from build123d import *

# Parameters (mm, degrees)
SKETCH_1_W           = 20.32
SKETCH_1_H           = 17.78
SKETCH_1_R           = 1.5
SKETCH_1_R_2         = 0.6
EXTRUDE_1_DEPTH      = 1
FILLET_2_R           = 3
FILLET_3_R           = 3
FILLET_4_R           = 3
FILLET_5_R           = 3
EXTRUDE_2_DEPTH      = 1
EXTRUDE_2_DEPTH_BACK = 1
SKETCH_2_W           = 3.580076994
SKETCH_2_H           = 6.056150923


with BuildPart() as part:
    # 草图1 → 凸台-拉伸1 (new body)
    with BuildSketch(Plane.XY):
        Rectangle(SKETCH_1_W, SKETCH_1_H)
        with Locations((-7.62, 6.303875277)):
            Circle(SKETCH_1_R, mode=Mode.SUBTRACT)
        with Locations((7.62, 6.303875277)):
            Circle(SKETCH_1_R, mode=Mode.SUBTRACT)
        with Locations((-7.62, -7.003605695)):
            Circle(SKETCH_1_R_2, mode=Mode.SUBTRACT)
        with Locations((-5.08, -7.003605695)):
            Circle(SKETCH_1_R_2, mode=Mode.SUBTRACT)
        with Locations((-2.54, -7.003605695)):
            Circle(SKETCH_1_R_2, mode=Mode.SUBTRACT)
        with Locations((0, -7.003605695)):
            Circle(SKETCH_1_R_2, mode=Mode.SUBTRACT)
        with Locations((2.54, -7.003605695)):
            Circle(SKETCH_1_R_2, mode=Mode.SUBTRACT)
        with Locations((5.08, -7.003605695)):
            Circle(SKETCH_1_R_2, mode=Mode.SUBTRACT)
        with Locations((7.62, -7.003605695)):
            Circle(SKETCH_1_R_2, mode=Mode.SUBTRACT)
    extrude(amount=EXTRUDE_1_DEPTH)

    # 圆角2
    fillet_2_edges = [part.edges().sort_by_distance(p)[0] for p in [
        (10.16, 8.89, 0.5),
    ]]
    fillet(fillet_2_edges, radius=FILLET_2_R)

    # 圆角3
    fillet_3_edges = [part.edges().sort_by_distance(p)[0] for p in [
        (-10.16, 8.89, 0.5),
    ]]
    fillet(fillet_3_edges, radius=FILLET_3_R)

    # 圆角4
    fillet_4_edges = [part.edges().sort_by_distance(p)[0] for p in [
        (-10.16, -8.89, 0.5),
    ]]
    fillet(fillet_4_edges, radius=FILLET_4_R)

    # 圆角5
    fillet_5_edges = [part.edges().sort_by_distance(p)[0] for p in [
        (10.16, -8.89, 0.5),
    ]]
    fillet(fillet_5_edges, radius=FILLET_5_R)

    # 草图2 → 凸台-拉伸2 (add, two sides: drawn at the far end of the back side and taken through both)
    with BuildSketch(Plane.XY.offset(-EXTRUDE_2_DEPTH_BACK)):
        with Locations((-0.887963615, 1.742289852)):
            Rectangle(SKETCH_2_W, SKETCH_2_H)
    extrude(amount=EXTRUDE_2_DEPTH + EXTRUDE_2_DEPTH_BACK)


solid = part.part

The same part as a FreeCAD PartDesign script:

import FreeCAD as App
import Part
import Sketcher
Q = App.Units.Quantity


def edges_at(feature, points):
    """Names of the edges that pass closest to the given points."""
    edges = feature.Shape.Edges
    near = lambda p: min(range(len(edges)), key=lambda i: edges[i].distToShape(Part.Vertex(*p))[0])
    return sorted({f"Edge{near(p) + 1}" for p in points})


def add_polygon(sketch, points):
    """Adds a closed chain of lines whose ends are joined by coincident constraints."""
    first, n = sketch.GeometryCount, len(points)
    for a, b in zip(points, points[1:] + points[:1]):
        sketch.addGeometry(Part.LineSegment(App.Vector(*a, 0), App.Vector(*b, 0)), False)
    for i in range(n):
        sketch.addConstraint(Sketcher.Constraint("Coincident", first + i, 2, first + (i + 1) % n, 1))

doc = App.newDocument("Part")
body = doc.addObject("PartDesign::Body", "Body")

sketch1 = body.newObject("Sketcher::SketchObject", "Sketch")
sketch1.AttachmentSupport = (doc.getObject("XY_Plane"), [""])
sketch1.MapMode = "FlatFace"
add_polygon(sketch1, [(-10.16, 8.89), (-10.16, -8.89), (10.16, -8.89), (10.16, 8.89)])
sketch1.addGeometry(Part.Circle(App.Vector(-7.62, -7.003606, 0), App.Vector(0, 0, 1), 0.6), False)
sketch1.addGeometry(Part.Circle(App.Vector(-5.08, -7.003606, 0), App.Vector(0, 0, 1), 0.6), False)
sketch1.addGeometry(Part.Circle(App.Vector(-2.54, -7.003606, 0), App.Vector(0, 0, 1), 0.6), False)
sketch1.addGeometry(Part.Circle(App.Vector(0, -7.003606, 0), App.Vector(0, 0, 1), 0.6), False)
sketch1.addGeometry(Part.Circle(App.Vector(2.54, -7.003606, 0), App.Vector(0, 0, 1), 0.6), False)
sketch1.addGeometry(Part.Circle(App.Vector(5.08, -7.003606, 0), App.Vector(0, 0, 1), 0.6), False)
sketch1.addGeometry(Part.Circle(App.Vector(7.62, -7.003606, 0), App.Vector(0, 0, 1), 0.6), False)
sketch1.addGeometry(Part.Circle(App.Vector(-7.62, 6.303875, 0), App.Vector(0, 0, 1), 1.5), False)
sketch1.addGeometry(Part.Circle(App.Vector(7.62, 6.303875, 0), App.Vector(0, 0, 1), 1.5), False)
sketch1.addConstraint(Sketcher.Constraint("Vertical", 0))
sketch1.addConstraint(Sketcher.Constraint("Horizontal", 1))
sketch1.addConstraint(Sketcher.Constraint("Vertical", 2))
sketch1.addConstraint(Sketcher.Constraint("Horizontal", 3))
sketch1.addConstraint(Sketcher.Constraint("Equal", 4, 5))
sketch1.addConstraint(Sketcher.Constraint("Equal", 5, 6))
sketch1.addConstraint(Sketcher.Constraint("Equal", 6, 7))
sketch1.addConstraint(Sketcher.Constraint("Equal", 7, 8))
sketch1.addConstraint(Sketcher.Constraint("Equal", 8, 9))
sketch1.addConstraint(Sketcher.Constraint("Equal", 9, 10))
sketch1.addConstraint(Sketcher.Constraint("Equal", 11, 12))
sketch1.addConstraint(Sketcher.Constraint("Symmetric", 0, 2, 2, 2, -1, 1))
sketch1.addConstraint(Sketcher.Constraint("Symmetric", 6, 3, 8, 3, -2))
sketch1.addConstraint(Sketcher.Constraint("Symmetric", 5, 3, 9, 3, -2))
sketch1.addConstraint(Sketcher.Constraint("Symmetric", 4, 3, 10, 3, -2))
sketch1.addConstraint(Sketcher.Constraint("Symmetric", 11, 3, 12, 3, -2))
sketch1.addConstraint(Sketcher.Constraint("PointOnObject", 7, 3, -2))
sketch1.addConstraint(Sketcher.Constraint("Horizontal", 4, 3, 5, 3))
sketch1.addConstraint(Sketcher.Constraint("Horizontal", 5, 3, 6, 3))
sketch1.addConstraint(Sketcher.Constraint("Horizontal", 6, 3, 7, 3))
sketch1.addConstraint(Sketcher.Constraint("Vertical", 4, 3, 11, 3))
sketch1.addConstraint(Sketcher.Constraint("Diameter", 11, Q("3 mm")))
sketch1.addConstraint(Sketcher.Constraint("Diameter", 4, Q("1.2 mm")))
sketch1.addConstraint(Sketcher.Constraint("DistanceX", 1, 1, 1, 2, Q("20.32 mm")))
sketch1.addConstraint(Sketcher.Constraint("DistanceY", 0, 2, 0, 1, Q("17.78 mm")))
sketch1.addConstraint(Sketcher.Constraint("DistanceX", 4, 3, 9, 3, Q("12.7 mm")))
sketch1.addConstraint(Sketcher.Constraint("DistanceX", 0, 2, 8, 3, Q("12.7 mm")))
sketch1.addConstraint(Sketcher.Constraint("DistanceX", 4, 3, -1, 1, Q("7.62 mm")))
sketch1.addConstraint(Sketcher.Constraint("DistanceY", 4, 3, 11, 3, Q("13.307481 mm")))
sketch1.addConstraint(Sketcher.Constraint("DistanceY", 4, 3, -1, 1, Q("7.003606 mm")))
pad1 = body.newObject("PartDesign::Pad", "Pad")
pad1.Profile = sketch1
pad1.Length = 1
doc.recompute()

fillet = body.newObject("PartDesign::Fillet", "Fillet")
fillet.Base = (pad1, edges_at(pad1, [(10.16, 8.89, 0.5)]))
fillet.Radius = 3
doc.recompute()

fillet2 = body.newObject("PartDesign::Fillet", "Fillet001")
fillet2.Base = (fillet, edges_at(fillet, [(-10.16, 8.89, 0.5)]))
fillet2.Radius = 3
doc.recompute()

fillet3 = body.newObject("PartDesign::Fillet", "Fillet002")
fillet3.Base = (fillet2, edges_at(fillet2, [(-10.16, -8.89, 0.5)]))
fillet3.Radius = 3
doc.recompute()

fillet4 = body.newObject("PartDesign::Fillet", "Fillet003")
fillet4.Base = (fillet3, edges_at(fillet3, [(10.16, -8.89, 0.5)]))
fillet4.Radius = 3

sketch2 = body.newObject("Sketcher::SketchObject", "Sketch001")
sketch2.AttachmentSupport = (doc.getObject("XY_Plane"), [""])
sketch2.MapMode = "FlatFace"
add_polygon(sketch2, [(-2.678002, 4.770365), (-2.678002, -1.285786), (0.902075, -1.285786), (0.902075, 4.770365)])
sketch2.addConstraint(Sketcher.Constraint("Vertical", 0))
sketch2.addConstraint(Sketcher.Constraint("Horizontal", 1))
sketch2.addConstraint(Sketcher.Constraint("Vertical", 2))
sketch2.addConstraint(Sketcher.Constraint("Horizontal", 3))
sketch2.addConstraint(Sketcher.Constraint("DistanceY", 0, 2, 0, 1, Q("6.056151 mm")))
sketch2.addConstraint(Sketcher.Constraint("DistanceX", 1, 1, 1, 2, Q("3.580077 mm")))
sketch2.addConstraint(Sketcher.Constraint("DistanceX", 0, 2, -1, 1, Q("2.678002 mm")))
sketch2.addConstraint(Sketcher.Constraint("DistanceY", 0, 2, -1, 1, Q("1.285786 mm")))
pad2 = body.newObject("PartDesign::Pad", "Pad001")
pad2.Profile = sketch2
pad2.Type = "TwoLengths"
pad2.Length = 1
pad2.Length2 = 1

doc.recompute()
